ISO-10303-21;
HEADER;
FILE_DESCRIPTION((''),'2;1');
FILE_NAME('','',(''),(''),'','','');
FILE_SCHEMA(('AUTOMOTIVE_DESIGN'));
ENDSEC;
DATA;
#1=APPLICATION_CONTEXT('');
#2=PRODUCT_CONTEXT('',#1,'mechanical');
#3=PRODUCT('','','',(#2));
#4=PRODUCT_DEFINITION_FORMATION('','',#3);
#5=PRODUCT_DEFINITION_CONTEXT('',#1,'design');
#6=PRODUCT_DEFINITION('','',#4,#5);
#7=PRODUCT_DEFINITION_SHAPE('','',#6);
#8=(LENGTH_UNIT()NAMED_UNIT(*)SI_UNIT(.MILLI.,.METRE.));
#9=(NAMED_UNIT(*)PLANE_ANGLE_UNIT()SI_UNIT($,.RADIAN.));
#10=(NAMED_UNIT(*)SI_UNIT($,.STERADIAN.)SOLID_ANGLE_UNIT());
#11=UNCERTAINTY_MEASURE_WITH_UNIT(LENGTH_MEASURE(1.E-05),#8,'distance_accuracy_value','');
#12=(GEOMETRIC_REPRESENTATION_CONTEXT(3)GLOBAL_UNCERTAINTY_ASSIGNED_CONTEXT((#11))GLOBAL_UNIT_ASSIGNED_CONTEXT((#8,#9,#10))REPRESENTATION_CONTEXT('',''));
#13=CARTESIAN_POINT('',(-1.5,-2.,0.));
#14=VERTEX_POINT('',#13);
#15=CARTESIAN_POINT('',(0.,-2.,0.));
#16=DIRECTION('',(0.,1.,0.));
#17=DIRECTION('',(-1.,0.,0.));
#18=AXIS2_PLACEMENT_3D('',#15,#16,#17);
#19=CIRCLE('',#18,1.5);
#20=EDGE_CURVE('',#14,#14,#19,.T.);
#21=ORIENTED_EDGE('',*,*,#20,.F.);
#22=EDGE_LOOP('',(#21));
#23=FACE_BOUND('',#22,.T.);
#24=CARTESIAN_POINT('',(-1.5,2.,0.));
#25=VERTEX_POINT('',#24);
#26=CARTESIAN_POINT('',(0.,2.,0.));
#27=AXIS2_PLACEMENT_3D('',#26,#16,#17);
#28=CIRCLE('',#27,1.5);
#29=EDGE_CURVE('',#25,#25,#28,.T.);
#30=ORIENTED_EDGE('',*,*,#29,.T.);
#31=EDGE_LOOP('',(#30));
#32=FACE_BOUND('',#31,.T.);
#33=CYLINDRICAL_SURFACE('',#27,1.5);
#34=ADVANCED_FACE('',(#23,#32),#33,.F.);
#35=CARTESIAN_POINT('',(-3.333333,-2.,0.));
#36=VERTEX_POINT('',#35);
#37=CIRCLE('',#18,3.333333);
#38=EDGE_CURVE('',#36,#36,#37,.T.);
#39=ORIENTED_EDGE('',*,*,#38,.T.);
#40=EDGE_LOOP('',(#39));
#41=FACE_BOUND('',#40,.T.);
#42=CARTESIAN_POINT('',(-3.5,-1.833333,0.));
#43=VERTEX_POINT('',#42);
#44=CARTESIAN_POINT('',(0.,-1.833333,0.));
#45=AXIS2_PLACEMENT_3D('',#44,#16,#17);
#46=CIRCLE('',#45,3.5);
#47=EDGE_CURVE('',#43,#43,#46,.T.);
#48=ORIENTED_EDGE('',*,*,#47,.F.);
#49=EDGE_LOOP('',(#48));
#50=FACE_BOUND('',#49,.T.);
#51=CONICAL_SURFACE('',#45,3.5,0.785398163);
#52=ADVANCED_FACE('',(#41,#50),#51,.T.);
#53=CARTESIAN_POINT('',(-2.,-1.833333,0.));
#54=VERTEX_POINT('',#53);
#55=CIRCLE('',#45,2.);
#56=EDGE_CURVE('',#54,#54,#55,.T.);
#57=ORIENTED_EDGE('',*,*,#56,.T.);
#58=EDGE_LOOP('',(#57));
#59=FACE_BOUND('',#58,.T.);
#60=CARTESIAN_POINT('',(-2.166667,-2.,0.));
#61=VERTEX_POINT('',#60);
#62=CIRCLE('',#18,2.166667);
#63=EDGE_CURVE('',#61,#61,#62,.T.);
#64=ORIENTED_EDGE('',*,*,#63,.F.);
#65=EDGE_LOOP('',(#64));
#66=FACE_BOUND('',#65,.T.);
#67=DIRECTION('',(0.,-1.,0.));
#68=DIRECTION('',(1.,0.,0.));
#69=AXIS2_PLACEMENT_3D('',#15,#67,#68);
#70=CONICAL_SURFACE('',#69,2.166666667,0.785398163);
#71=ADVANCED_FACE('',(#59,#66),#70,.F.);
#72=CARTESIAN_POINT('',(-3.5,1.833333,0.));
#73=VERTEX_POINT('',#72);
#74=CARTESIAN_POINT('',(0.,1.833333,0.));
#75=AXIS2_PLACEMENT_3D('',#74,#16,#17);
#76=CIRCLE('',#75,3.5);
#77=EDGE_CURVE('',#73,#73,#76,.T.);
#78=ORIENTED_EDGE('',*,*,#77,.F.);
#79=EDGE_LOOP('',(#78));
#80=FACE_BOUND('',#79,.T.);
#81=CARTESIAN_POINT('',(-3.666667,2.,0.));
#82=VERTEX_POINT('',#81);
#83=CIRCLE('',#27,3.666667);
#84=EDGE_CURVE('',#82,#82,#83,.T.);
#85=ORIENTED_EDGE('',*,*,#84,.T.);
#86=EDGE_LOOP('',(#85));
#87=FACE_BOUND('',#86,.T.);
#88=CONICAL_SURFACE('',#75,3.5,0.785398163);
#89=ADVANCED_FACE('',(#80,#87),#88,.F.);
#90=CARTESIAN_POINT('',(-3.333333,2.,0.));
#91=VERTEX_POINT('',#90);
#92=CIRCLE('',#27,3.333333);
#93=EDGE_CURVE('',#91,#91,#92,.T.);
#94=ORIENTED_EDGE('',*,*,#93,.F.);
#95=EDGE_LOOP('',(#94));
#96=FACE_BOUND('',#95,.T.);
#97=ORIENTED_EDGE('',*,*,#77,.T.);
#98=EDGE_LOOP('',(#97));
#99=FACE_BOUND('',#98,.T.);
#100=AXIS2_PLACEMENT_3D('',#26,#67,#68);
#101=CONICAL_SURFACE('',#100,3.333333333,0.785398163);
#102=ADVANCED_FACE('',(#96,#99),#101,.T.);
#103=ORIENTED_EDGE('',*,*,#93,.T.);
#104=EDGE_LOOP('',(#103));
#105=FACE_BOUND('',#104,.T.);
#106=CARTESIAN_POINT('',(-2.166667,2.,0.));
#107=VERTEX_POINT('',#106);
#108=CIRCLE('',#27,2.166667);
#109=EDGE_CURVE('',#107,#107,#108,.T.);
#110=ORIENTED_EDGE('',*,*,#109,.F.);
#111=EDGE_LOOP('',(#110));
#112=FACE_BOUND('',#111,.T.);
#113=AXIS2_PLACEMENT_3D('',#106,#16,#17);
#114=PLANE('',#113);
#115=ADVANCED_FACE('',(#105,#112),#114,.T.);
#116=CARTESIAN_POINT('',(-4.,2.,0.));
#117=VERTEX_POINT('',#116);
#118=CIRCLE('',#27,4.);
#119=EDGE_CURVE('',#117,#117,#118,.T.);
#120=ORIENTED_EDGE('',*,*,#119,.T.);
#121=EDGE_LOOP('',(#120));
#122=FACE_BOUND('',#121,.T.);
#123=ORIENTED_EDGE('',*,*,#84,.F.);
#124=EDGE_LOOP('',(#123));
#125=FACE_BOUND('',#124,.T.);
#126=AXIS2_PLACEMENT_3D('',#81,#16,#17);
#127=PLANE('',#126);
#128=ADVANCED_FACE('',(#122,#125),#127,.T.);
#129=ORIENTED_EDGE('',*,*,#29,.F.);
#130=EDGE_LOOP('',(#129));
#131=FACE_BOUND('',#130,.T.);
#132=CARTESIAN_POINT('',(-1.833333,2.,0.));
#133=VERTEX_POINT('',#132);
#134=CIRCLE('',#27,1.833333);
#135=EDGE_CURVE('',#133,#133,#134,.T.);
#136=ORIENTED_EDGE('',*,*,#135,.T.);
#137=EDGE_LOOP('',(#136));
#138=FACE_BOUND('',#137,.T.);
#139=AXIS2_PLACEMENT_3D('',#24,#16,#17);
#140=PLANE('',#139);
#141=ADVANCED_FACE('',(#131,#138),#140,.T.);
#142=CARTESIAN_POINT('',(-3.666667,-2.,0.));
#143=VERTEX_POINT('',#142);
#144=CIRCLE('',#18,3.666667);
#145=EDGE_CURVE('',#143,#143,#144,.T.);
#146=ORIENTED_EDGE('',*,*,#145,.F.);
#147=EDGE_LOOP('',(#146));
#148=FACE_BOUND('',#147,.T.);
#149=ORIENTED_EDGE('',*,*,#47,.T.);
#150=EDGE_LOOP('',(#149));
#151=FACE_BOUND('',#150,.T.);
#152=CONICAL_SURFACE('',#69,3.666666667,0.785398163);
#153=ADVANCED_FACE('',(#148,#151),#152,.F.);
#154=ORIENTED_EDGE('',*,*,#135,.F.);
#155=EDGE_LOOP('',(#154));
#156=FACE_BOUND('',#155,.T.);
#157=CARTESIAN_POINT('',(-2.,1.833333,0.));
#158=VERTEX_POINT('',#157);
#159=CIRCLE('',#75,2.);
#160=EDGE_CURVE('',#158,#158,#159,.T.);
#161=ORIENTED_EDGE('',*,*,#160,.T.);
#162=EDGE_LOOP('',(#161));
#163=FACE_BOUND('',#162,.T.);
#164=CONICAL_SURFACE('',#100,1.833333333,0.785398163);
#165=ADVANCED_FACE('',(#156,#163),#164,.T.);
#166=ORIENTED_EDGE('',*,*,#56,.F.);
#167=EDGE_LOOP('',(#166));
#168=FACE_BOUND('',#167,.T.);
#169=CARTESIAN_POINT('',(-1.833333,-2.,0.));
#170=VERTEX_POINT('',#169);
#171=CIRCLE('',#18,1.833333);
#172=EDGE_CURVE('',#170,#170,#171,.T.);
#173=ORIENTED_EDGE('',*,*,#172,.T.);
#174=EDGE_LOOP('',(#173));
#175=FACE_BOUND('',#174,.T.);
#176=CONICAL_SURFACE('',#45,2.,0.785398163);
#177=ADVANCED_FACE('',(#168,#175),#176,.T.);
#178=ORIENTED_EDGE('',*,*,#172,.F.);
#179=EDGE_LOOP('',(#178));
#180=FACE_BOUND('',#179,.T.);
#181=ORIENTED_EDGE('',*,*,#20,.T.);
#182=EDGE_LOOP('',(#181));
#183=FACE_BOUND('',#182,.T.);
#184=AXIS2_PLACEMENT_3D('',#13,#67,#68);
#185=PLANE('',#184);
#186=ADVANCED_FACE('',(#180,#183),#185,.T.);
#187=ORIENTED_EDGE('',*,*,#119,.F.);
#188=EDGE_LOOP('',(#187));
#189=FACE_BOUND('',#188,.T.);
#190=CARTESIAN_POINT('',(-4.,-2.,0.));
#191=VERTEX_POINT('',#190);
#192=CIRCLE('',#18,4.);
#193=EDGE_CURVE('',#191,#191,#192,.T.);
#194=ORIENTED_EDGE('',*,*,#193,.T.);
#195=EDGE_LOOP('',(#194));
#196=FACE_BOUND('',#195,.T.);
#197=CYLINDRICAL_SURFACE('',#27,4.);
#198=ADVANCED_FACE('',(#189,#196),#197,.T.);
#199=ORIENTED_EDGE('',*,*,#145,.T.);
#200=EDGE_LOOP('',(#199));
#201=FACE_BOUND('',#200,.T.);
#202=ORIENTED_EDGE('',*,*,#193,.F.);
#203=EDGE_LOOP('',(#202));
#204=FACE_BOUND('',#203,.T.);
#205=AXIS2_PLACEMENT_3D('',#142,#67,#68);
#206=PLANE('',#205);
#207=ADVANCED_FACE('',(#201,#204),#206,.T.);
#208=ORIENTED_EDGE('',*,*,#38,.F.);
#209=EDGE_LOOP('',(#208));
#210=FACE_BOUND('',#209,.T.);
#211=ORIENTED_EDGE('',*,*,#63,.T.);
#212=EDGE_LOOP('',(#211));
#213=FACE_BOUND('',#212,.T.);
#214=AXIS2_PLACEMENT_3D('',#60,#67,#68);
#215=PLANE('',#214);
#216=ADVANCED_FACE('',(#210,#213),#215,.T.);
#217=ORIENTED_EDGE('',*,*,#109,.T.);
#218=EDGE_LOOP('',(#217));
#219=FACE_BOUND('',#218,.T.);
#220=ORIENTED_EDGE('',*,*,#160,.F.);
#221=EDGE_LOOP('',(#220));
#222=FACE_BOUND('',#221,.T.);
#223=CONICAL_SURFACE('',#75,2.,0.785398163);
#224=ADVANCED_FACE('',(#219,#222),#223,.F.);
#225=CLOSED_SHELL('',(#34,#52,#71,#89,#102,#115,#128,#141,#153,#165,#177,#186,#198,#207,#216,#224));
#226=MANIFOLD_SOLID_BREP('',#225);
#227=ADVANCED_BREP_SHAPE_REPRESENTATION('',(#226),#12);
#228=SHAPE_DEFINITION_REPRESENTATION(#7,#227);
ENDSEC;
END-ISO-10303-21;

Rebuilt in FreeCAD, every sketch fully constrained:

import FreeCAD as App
import Part
import Sketcher
from FreeCAD import Vector
Q = App.Units.Quantity


def add_polygon(sketch, points):
    """Adds a closed chain of lines whose ends are joined by coincident constraints."""
    first, n = sketch.GeometryCount, len(points)
    for a, b in zip(points, points[1:] + points[:1]):
        sketch.addGeometry(Part.LineSegment(App.Vector(*a, 0), App.Vector(*b, 0)), False)
    for i in range(n):
        sketch.addConstraint(Sketcher.Constraint("Coincident", first + i, 2, first + (i + 1) % n, 1))

doc = App.newDocument("Part")
body = doc.addObject("PartDesign::Body", "Body")

sketch1 = doc.addObject("Sketcher::SketchObject", "Sketch")
body.addObject(sketch1)
sketch1.AttachmentSupport = (doc.XY_Plane, [""])
sketch1.MapMode = "FlatFace"
add_polygon(sketch1, [(-1.5, 2), (-1.83, 2), (-2, 1.83), (-2.17, 2), (-3.33, 2), (-3.5, 1.83), (-3.67, 2), (-4, 2), (-4, -2), (-3.67, -2), (-3.5, -1.83), (-3.33, -2), (-2.17, -2), (-2, -1.83), (-1.83, -2), (-1.5, -2)])
sketch1.addConstraint(Sketcher.Constraint("Horizontal", 0))
sketch1.addConstraint(Sketcher.Constraint("Horizontal", 3))
sketch1.addConstraint(Sketcher.Constraint("Horizontal", 6))
sketch1.addConstraint(Sketcher.Constraint("Vertical", 7))
sketch1.addConstraint(Sketcher.Constraint("Horizontal", 8))
sketch1.addConstraint(Sketcher.Constraint("Horizontal", 11))
sketch1.addConstraint(Sketcher.Constraint("Horizontal", 14))
sketch1.addConstraint(Sketcher.Constraint("Vertical", 15))
sketch1.addConstraint(Sketcher.Constraint("Symmetric", 5, 2, 8, 2, -1))
sketch1.addConstraint(Sketcher.Constraint("Symmetric", 4, 2, 9, 2, -1))
sketch1.addConstraint(Sketcher.Constraint("Symmetric", 3, 2, 10, 2, -1))
sketch1.addConstraint(Sketcher.Constraint("Symmetric", 1, 2, 12, 2, -1))
sketch1.addConstraint(Sketcher.Constraint("Symmetric", 0, 2, 13, 2, -1))
sketch1.addConstraint(Sketcher.Constraint("Perpendicular", 1, 2))
sketch1.addConstraint(Sketcher.Constraint("Perpendicular", 2, 4))
sketch1.addConstraint(Sketcher.Constraint("Perpendicular", 4, 5))
sketch1.addConstraint(Sketcher.Constraint("Perpendicular", 5, 9))
sketch1.addConstraint(Sketcher.Constraint("Perpendicular", 10, 12))
sketch1.addConstraint(Sketcher.Constraint("Horizontal", 0, 2, 2, 2))
sketch1.addConstraint(Sketcher.Constraint("Horizontal", 1, 2, 4, 2))
sketch1.addConstraint(Sketcher.Constraint("Horizontal", 3, 2, 5, 2))
sketch1.addConstraint(Sketcher.Constraint("Equal", 0, 6))
sketch1.addConstraint(Sketcher.Constraint("DistanceY", 7, 2, 7, 1, Q("4 mm")))
sketch1.addConstraint(Sketcher.Constraint("DistanceX", 1, 2, -1, 1, Q("2 mm")))
sketch1.addConstraint(Sketcher.Constraint("DistanceX", 6, 2, -1, 1, Q("4 mm")))
sketch1.addConstraint(Sketcher.Constraint("DistanceX", 4, 2, -1, 1, Q("3.5 mm")))
sketch1.addConstraint(Sketcher.Constraint("DistanceX", 0, 2, 0, 1, Q("0.333333 mm")))
revolution = doc.addObject("PartDesign::Revolution", "Revolution")
body.addObject(revolution)
revolution.Profile = sketch1
revolution.ReferenceAxis = (sketch1, ["V_Axis"])
revolution.Angle = 360

doc.recompute()
